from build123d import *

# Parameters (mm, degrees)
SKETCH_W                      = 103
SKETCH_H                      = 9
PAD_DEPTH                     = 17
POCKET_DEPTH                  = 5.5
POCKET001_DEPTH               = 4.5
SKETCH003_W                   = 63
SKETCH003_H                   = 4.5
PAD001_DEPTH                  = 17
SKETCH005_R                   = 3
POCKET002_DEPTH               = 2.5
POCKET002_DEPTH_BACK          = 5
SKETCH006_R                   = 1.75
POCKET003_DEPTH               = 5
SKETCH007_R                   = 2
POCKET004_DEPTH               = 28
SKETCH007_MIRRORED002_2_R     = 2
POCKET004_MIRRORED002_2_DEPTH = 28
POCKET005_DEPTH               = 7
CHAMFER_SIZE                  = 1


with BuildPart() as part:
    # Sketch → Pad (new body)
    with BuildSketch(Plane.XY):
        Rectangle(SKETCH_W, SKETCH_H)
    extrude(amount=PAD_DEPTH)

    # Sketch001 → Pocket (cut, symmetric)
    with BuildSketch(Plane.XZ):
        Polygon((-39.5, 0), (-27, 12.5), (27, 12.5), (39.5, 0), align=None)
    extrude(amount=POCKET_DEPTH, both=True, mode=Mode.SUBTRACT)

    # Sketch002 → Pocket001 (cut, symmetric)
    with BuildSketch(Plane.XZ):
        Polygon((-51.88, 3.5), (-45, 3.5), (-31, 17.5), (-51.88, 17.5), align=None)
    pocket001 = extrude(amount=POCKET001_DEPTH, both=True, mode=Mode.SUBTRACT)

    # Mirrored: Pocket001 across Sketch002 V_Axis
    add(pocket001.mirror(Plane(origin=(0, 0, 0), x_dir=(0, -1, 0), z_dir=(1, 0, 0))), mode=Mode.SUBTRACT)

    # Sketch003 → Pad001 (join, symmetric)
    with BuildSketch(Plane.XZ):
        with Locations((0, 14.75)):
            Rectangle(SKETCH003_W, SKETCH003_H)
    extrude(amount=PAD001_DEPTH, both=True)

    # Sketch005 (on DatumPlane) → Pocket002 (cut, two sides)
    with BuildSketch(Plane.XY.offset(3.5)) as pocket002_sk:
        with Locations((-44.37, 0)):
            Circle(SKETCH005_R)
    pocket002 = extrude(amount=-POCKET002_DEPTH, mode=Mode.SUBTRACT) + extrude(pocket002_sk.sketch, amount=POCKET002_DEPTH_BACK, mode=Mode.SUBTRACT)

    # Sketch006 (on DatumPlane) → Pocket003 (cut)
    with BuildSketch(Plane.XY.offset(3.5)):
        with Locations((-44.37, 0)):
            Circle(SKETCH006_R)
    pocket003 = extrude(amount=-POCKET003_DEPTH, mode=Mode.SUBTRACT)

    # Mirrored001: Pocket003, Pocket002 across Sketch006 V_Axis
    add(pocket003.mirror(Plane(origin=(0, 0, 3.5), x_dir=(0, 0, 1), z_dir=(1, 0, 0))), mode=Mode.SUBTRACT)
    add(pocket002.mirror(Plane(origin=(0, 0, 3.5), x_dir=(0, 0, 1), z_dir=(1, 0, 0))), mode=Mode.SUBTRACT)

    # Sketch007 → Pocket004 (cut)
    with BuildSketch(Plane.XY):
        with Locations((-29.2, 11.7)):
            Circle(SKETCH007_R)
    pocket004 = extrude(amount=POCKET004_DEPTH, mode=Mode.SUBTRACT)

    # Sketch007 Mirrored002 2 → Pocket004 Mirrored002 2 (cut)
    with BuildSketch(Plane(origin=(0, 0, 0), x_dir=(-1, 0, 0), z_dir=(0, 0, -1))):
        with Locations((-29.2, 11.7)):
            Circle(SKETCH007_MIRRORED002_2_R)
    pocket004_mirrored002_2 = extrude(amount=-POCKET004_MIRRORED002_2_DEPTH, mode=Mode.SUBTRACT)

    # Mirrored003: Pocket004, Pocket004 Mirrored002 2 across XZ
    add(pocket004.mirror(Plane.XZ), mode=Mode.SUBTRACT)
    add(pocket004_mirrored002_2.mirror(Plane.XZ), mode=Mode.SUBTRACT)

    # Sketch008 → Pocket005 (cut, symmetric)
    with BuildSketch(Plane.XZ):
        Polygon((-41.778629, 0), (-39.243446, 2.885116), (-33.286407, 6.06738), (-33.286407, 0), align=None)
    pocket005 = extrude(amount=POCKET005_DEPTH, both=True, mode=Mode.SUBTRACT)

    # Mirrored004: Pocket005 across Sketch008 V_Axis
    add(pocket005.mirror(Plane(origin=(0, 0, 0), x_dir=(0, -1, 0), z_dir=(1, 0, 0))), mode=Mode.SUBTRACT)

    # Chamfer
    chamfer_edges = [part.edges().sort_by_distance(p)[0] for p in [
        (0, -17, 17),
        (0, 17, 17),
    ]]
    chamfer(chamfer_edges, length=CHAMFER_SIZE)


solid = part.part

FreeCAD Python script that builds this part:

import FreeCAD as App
import Part
import Sketcher
from FreeCAD import Vector
Q = App.Units.Quantity


def edges_at(feature, points):
    """Names of the edges that pass closest to the given points."""
    edges = feature.Shape.Edges
    near = lambda p: min(range(len(edges)), key=lambda i: edges[i].distToShape(Part.Vertex(*p))[0])
    return sorted({f"Edge{near(p) + 1}" for p in points})

doc = App.newDocument("Part")
body = doc.addObject("PartDesign::Body", "Body")

sketch1 = body.newObject("Sketcher::SketchObject", "Sketch")
sketch1.AttachmentSupport = (doc.getObject("XY_Plane"), [""])
sketch1.MapMode = "FlatFace"
sketch1.addGeometry(Part.LineSegment(Vector(-52, 4, 0), Vector(-52, -4, 0)), False)
sketch1.addGeometry(Part.LineSegment(Vector(-52, -4, 0), Vector(52, -4, 0)), False)
sketch1.addGeometry(Part.LineSegment(Vector(52, -4, 0), Vector(52, 4, 0)), False)
sketch1.addGeometry(Part.LineSegment(Vector(52, 4, 0), Vector(-52, 4, 0)), False)
sketch1.addConstraint(Sketcher.Constraint("Coincident", 0, 2, 1, 1))
sketch1.addConstraint(Sketcher.Constraint("Coincident", 1, 2, 2, 1))
sketch1.addConstraint(Sketcher.Constraint("Coincident", 2, 2, 3, 1))
sketch1.addConstraint(Sketcher.Constraint("Coincident", 3, 2, 0, 1))
sketch1.addConstraint(Sketcher.Constraint("Vertical", 0))
sketch1.addConstraint(Sketcher.Constraint("Horizontal", 1))
sketch1.addConstraint(Sketcher.Constraint("Vertical", 2))
sketch1.addConstraint(Sketcher.Constraint("Horizontal", 3))
sketch1.addConstraint(Sketcher.Constraint("Symmetric", 0, 2, 2, 2, -1, 1))
sketch1.addConstraint(Sketcher.Constraint("DistanceX", 1, 1, 1, 2, Q("103 mm")))
sketch1.addConstraint(Sketcher.Constraint("DistanceY", 0, 2, 0, 1, Q("9 mm")))
pad1 = body.newObject("PartDesign::Pad", "Pad")
pad1.Profile = sketch1
pad1.Length = 17

sketch2 = body.newObject("Sketcher::SketchObject", "Sketch001")
sketch2.AttachmentSupport = (doc.getObject("XZ_Plane"), [""])
sketch2.MapMode = "FlatFace"
sketch2.addGeometry(Part.LineSegment(Vector(-27, 12, 0), Vector(-40, 0, 0)), False)
sketch2.addGeometry(Part.LineSegment(Vector(-40, 0, 0), Vector(40, 0, 0)), False)
sketch2.addGeometry(Part.LineSegment(Vector(40, 0, 0), Vector(27, 12, 0)), False)
sketch2.addGeometry(Part.LineSegment(Vector(27, 12, 0), Vector(-27, 12, 0)), False)
sketch2.addConstraint(Sketcher.Constraint("Coincident", 0, 2, 1, 1))
sketch2.addConstraint(Sketcher.Constraint("Coincident", 1, 2, 2, 1))
sketch2.addConstraint(Sketcher.Constraint("Coincident", 2, 2, 3, 1))
sketch2.addConstraint(Sketcher.Constraint("Coincident", 3, 2, 0, 1))
sketch2.addConstraint(Sketcher.Constraint("Horizontal", 1))
sketch2.addConstraint(Sketcher.Constraint("Horizontal", 3))
sketch2.addConstraint(Sketcher.Constraint("Symmetric", 0, 2, 1, 2, -1, 1))
sketch2.addConstraint(Sketcher.Constraint("Perpendicular", 0, 2))
sketch2.addConstraint(Sketcher.Constraint("Equal", 0, 2))
sketch2.addConstraint(Sketcher.Constraint("DistanceX", 1, 1, 1, 2, Q("79 mm")))
sketch2.addConstraint(Sketcher.Constraint("DistanceX", 3, 2, 3, 1, Q("54 mm")))
pocket1 = body.newObject("PartDesign::Pocket", "Pocket")
pocket1.Profile = sketch2
pocket1.Length = 11
pocket1.Midplane = True

sketch3 = body.newObject("Sketcher::SketchObject", "Sketch002")
sketch3.AttachmentSupport = (doc.getObject("XZ_Plane"), [""])
sketch3.MapMode = "FlatFace"
sketch3.addGeometry(Part.LineSegment(Vector(-52, 4, 0), Vector(-45, 4, 0)), False)
sketch3.addGeometry(Part.LineSegment(Vector(-45, 4, 0), Vector(-31, 18, 0)), False)
sketch3.addGeometry(Part.LineSegment(Vector(-31, 18, 0), Vector(-52, 18, 0)), False)
sketch3.addGeometry(Part.LineSegment(Vector(-52, 18, 0), Vector(-52, 4, 0)), False)
sketch3.addConstraint(Sketcher.Constraint("Coincident", 0, 2, 1, 1))
sketch3.addConstraint(Sketcher.Constraint("Coincident", 1, 2, 2, 1))
sketch3.addConstraint(Sketcher.Constraint("Coincident", 2, 2, 3, 1))
sketch3.addConstraint(Sketcher.Constraint("Coincident", 3, 2, 0, 1))
sketch3.addConstraint(Sketcher.Constraint("Horizontal", 0))
sketch3.addConstraint(Sketcher.Constraint("Horizontal", 2))
sketch3.addConstraint(Sketcher.Constraint("Vertical", 3))
sketch3.addConstraint(Sketcher.Constraint("DistanceY", 3, 2, 3, 1, Q("14 mm")))
sketch3.addConstraint(Sketcher.Constraint("Angle", 1, Q("45 deg")))
sketch3.addConstraint(Sketcher.Constraint("DistanceX", 0, 2, -1, 1, Q("45 mm")))
sketch3.addConstraint(Sketcher.Constraint("DistanceX", 0, 1, 0, 2, Q("6.88 mm")))
sketch3.addConstraint(Sketcher.Constraint("DistanceY", -1, 1, 0, 2, Q("3.5 mm")))
pocket2 = body.newObject("PartDesign::Pocket", "Pocket001")
pocket2.Profile = sketch3
pocket2.Length = 9
pocket2.Midplane = True
doc.recompute()

mirrored = body.newObject("PartDesign::Mirrored", "Mirrored")
mirrored.Originals = [pocket2]
mirrored.MirrorPlane = (doc.getObject("YZ_Plane"), [""])
body.Tip = mirrored

sketch4 = body.newObject("Sketcher::SketchObject", "Sketch003")
sketch4.AttachmentSupport = (doc.getObject("XZ_Plane"), [""])
sketch4.MapMode = "FlatFace"
sketch4.addGeometry(Part.LineSegment(Vector(-31.5, 17, 0), Vector(-31.5, 12.5, 0)), False)
sketch4.addGeometry(Part.LineSegment(Vector(-31.5, 12.5, 0), Vector(31.5, 12.5, 0)), False)
sketch4.addGeometry(Part.LineSegment(Vector(31.5, 12.5, 0), Vector(31.5, 17, 0)), False)
sketch4.addGeometry(Part.LineSegment(Vector(31.5, 17, 0), Vector(-31.5, 17, 0)), False)
sketch4.addConstraint(Sketcher.Constraint("Coincident", 0, 2, 1, 1))
sketch4.addConstraint(Sketcher.Constraint("Coincident", 1, 2, 2, 1))
sketch4.addConstraint(Sketcher.Constraint("Coincident", 2, 2, 3, 1))
sketch4.addConstraint(Sketcher.Constraint("Coincident", 3, 2, 0, 1))
sketch4.addConstraint(Sketcher.Constraint("Vertical", 0))
sketch4.addConstraint(Sketcher.Constraint("Horizontal", 1))
sketch4.addConstraint(Sketcher.Constraint("Vertical", 2))
sketch4.addConstraint(Sketcher.Constraint("Horizontal", 3))
sketch4.addConstraint(Sketcher.Constraint("DistanceX", 1, 1, 1, 2, Q("63 mm")))
sketch4.addConstraint(Sketcher.Constraint("DistanceY", 0, 2, 0, 1, Q("4.5 mm")))
sketch4.addConstraint(Sketcher.Constraint("DistanceY", -1, 1, 2, 2, Q("17 mm")))
sketch4.addConstraint(Sketcher.Constraint("DistanceX", 0, 2, -1, 1, Q("31.5 mm")))
pad2 = body.newObject("PartDesign::Pad", "Pad001")
pad2.Profile = sketch4
pad2.Length = 34
pad2.Midplane = True

sketch5 = body.newObject("Sketcher::SketchObject", "Sketch004")
sketch5.AttachmentSupport = (doc.getObject("XY_Plane"), [""])
sketch5.MapMode = "FlatFace"
sketch5.AttachmentOffset = App.Placement(Vector(0, 0, 3.5), App.Rotation())
sketch5.addGeometry(Part.Circle(Vector(-44.4, 0, 0), Vector(0, 0, 1), 3), False)
sketch5.addConstraint(Sketcher.Constraint("PointOnObject", 0, 3, -1))
sketch5.addConstraint(Sketcher.Constraint("Diameter", 0, Q("6 mm")))
sketch5.addConstraint(Sketcher.Constraint("DistanceX", 0, 3, -1, 1, Q("44.37 mm")))
pocket3 = body.newObject("PartDesign::Pocket", "Pocket002")
pocket3.Profile = sketch5
pocket3.Type = "TwoLengths"
pocket3.Length = 2.5
pocket3.Length2 = 5

sketch6 = body.newObject("Sketcher::SketchObject", "Sketch005")
sketch6.AttachmentSupport = (doc.getObject("XY_Plane"), [""])
sketch6.MapMode = "FlatFace"
sketch6.AttachmentOffset = App.Placement(Vector(0, 0, 3.5), App.Rotation())
sketch6.addGeometry(Part.Circle(Vector(-44.4, 0, 0), Vector(0, 0, 1), 1.8), False)
sketch6.addConstraint(Sketcher.Constraint("PointOnObject", 0, 3, -1))
sketch6.addConstraint(Sketcher.Constraint("Diameter", 0, Q("3.5 mm")))
sketch6.addConstraint(Sketcher.Constraint("DistanceX", 0, 3, -1, 1, Q("44.37 mm")))
pocket4 = body.newObject("PartDesign::Pocket", "Pocket003")
pocket4.Profile = sketch6
pocket4.Length = 5
doc.recompute()

mirrored2 = body.newObject("PartDesign::Mirrored", "Mirrored001")
mirrored2.Originals = [pocket4, pocket3]
mirrored2.MirrorPlane = (doc.getObject("YZ_Plane"), [""])
body.Tip = mirrored2

sketch7 = body.newObject("Sketcher::SketchObject", "Sketch006")
sketch7.AttachmentSupport = (doc.getObject("XY_Plane"), [""])
sketch7.MapMode = "FlatFace"
sketch7.addGeometry(Part.Circle(Vector(-29.2, 11.7, 0), Vector(0, 0, 1), 2), False)
sketch7.addConstraint(Sketcher.Constraint("Diameter", 0, Q("4 mm")))
sketch7.addConstraint(Sketcher.Constraint("DistanceX", 0, 3, -1, 1, Q("29.2 mm")))
sketch7.addConstraint(Sketcher.Constraint("DistanceY", -1, 1, 0, 3, Q("11.7 mm")))
pocket5 = body.newObject("PartDesign::Pocket", "Pocket004")
pocket5.Profile = sketch7
pocket5.Length = 28
pocket5.Reversed = True

sketch8 = body.newObject("Sketcher::SketchObject", "Sketch007")
sketch8.AttachmentSupport = (doc.getObject("XY_Plane"), [""])
sketch8.MapMode = "FlatFace"
sketch8.addGeometry(Part.Circle(Vector(29.2, 11.7, 0), Vector(0, 0, 1), 2), False)
sketch8.addConstraint(Sketcher.Constraint("Diameter", 0, Q("4 mm")))
sketch8.addConstraint(Sketcher.Constraint("DistanceX", -1, 1, 0, 3, Q("29.2 mm")))
sketch8.addConstraint(Sketcher.Constraint("DistanceY", -1, 1, 0, 3, Q("11.7 mm")))
pocket6 = body.newObject("PartDesign::Pocket", "Pocket005")
pocket6.Profile = sketch8
pocket6.Length = 28
pocket6.Reversed = True
doc.recompute()

mirrored3 = body.newObject("PartDesign::Mirrored", "Mirrored002")
mirrored3.Originals = [pocket5, pocket6]
mirrored3.MirrorPlane = (doc.getObject("XZ_Plane"), [""])
body.Tip = mirrored3

sketch9 = body.newObject("Sketcher::SketchObject", "Sketch008")
sketch9.AttachmentSupport = (doc.getObject("XZ_Plane"), [""])
sketch9.MapMode = "FlatFace"
sketch9.addGeometry(Part.LineSegment(Vector(-39.2, 2.9, 0), Vector(-41.8, 0, 0)), False)
sketch9.addGeometry(Part.LineSegment(Vector(-41.8, 0, 0), Vector(-33.3, 0, 0)), False)
sketch9.addGeometry(Part.LineSegment(Vector(-33.3, 0, 0), Vector(-33.3, 6.1, 0)), False)
sketch9.addGeometry(Part.LineSegment(Vector(-33.3, 6.1, 0), Vector(-39.2, 2.9, 0)), False)
sketch9.addConstraint(Sketcher.Constraint("Coincident", 0, 2, 1, 1))
sketch9.addConstraint(Sketcher.Constraint("Coincident", 1, 2, 2, 1))
sketch9.addConstraint(Sketcher.Constraint("Coincident", 2, 2, 3, 1))
sketch9.addConstraint(Sketcher.Constraint("Coincident", 3, 2, 0, 1))
sketch9.addConstraint(Sketcher.Constraint("Horizontal", 1))
sketch9.addConstraint(Sketcher.Constraint("Vertical", 2))
sketch9.addConstraint(Sketcher.Constraint("PointOnObject", 0, 2, -1))
sketch9.addConstraint(Sketcher.Constraint("DistanceY", 2, 1, 2, 2, Q("6.06738 mm")))
sketch9.addConstraint(Sketcher.Constraint("Distance", 0, Q("3.840709 mm")))
sketch9.addConstraint(Sketcher.Constraint("Distance", 3, Q("6.753748 mm")))
sketch9.addConstraint(Sketcher.Constraint("DistanceX", 1, 1, 1, 2, Q("8.492222 mm")))
sketch9.addConstraint(Sketcher.Constraint("DistanceX", 0, 2, -1, 1, Q("41.778629 mm")))
pocket7 = body.newObject("PartDesign::Pocket", "Pocket006")
pocket7.Profile = sketch9
pocket7.Length = 14
pocket7.Midplane = True
doc.recompute()

mirrored4 = body.newObject("PartDesign::Mirrored", "Mirrored003")
mirrored4.Originals = [pocket7]
mirrored4.MirrorPlane = (doc.getObject("YZ_Plane"), [""])
body.Tip = mirrored4
doc.recompute()

chamfer = body.newObject("PartDesign::Chamfer", "Chamfer")
chamfer.Base = (mirrored4, edges_at(mirrored4, [(0, -17, 17), (0, 17, 17)]))
chamfer.Size = 1

doc.recompute()
